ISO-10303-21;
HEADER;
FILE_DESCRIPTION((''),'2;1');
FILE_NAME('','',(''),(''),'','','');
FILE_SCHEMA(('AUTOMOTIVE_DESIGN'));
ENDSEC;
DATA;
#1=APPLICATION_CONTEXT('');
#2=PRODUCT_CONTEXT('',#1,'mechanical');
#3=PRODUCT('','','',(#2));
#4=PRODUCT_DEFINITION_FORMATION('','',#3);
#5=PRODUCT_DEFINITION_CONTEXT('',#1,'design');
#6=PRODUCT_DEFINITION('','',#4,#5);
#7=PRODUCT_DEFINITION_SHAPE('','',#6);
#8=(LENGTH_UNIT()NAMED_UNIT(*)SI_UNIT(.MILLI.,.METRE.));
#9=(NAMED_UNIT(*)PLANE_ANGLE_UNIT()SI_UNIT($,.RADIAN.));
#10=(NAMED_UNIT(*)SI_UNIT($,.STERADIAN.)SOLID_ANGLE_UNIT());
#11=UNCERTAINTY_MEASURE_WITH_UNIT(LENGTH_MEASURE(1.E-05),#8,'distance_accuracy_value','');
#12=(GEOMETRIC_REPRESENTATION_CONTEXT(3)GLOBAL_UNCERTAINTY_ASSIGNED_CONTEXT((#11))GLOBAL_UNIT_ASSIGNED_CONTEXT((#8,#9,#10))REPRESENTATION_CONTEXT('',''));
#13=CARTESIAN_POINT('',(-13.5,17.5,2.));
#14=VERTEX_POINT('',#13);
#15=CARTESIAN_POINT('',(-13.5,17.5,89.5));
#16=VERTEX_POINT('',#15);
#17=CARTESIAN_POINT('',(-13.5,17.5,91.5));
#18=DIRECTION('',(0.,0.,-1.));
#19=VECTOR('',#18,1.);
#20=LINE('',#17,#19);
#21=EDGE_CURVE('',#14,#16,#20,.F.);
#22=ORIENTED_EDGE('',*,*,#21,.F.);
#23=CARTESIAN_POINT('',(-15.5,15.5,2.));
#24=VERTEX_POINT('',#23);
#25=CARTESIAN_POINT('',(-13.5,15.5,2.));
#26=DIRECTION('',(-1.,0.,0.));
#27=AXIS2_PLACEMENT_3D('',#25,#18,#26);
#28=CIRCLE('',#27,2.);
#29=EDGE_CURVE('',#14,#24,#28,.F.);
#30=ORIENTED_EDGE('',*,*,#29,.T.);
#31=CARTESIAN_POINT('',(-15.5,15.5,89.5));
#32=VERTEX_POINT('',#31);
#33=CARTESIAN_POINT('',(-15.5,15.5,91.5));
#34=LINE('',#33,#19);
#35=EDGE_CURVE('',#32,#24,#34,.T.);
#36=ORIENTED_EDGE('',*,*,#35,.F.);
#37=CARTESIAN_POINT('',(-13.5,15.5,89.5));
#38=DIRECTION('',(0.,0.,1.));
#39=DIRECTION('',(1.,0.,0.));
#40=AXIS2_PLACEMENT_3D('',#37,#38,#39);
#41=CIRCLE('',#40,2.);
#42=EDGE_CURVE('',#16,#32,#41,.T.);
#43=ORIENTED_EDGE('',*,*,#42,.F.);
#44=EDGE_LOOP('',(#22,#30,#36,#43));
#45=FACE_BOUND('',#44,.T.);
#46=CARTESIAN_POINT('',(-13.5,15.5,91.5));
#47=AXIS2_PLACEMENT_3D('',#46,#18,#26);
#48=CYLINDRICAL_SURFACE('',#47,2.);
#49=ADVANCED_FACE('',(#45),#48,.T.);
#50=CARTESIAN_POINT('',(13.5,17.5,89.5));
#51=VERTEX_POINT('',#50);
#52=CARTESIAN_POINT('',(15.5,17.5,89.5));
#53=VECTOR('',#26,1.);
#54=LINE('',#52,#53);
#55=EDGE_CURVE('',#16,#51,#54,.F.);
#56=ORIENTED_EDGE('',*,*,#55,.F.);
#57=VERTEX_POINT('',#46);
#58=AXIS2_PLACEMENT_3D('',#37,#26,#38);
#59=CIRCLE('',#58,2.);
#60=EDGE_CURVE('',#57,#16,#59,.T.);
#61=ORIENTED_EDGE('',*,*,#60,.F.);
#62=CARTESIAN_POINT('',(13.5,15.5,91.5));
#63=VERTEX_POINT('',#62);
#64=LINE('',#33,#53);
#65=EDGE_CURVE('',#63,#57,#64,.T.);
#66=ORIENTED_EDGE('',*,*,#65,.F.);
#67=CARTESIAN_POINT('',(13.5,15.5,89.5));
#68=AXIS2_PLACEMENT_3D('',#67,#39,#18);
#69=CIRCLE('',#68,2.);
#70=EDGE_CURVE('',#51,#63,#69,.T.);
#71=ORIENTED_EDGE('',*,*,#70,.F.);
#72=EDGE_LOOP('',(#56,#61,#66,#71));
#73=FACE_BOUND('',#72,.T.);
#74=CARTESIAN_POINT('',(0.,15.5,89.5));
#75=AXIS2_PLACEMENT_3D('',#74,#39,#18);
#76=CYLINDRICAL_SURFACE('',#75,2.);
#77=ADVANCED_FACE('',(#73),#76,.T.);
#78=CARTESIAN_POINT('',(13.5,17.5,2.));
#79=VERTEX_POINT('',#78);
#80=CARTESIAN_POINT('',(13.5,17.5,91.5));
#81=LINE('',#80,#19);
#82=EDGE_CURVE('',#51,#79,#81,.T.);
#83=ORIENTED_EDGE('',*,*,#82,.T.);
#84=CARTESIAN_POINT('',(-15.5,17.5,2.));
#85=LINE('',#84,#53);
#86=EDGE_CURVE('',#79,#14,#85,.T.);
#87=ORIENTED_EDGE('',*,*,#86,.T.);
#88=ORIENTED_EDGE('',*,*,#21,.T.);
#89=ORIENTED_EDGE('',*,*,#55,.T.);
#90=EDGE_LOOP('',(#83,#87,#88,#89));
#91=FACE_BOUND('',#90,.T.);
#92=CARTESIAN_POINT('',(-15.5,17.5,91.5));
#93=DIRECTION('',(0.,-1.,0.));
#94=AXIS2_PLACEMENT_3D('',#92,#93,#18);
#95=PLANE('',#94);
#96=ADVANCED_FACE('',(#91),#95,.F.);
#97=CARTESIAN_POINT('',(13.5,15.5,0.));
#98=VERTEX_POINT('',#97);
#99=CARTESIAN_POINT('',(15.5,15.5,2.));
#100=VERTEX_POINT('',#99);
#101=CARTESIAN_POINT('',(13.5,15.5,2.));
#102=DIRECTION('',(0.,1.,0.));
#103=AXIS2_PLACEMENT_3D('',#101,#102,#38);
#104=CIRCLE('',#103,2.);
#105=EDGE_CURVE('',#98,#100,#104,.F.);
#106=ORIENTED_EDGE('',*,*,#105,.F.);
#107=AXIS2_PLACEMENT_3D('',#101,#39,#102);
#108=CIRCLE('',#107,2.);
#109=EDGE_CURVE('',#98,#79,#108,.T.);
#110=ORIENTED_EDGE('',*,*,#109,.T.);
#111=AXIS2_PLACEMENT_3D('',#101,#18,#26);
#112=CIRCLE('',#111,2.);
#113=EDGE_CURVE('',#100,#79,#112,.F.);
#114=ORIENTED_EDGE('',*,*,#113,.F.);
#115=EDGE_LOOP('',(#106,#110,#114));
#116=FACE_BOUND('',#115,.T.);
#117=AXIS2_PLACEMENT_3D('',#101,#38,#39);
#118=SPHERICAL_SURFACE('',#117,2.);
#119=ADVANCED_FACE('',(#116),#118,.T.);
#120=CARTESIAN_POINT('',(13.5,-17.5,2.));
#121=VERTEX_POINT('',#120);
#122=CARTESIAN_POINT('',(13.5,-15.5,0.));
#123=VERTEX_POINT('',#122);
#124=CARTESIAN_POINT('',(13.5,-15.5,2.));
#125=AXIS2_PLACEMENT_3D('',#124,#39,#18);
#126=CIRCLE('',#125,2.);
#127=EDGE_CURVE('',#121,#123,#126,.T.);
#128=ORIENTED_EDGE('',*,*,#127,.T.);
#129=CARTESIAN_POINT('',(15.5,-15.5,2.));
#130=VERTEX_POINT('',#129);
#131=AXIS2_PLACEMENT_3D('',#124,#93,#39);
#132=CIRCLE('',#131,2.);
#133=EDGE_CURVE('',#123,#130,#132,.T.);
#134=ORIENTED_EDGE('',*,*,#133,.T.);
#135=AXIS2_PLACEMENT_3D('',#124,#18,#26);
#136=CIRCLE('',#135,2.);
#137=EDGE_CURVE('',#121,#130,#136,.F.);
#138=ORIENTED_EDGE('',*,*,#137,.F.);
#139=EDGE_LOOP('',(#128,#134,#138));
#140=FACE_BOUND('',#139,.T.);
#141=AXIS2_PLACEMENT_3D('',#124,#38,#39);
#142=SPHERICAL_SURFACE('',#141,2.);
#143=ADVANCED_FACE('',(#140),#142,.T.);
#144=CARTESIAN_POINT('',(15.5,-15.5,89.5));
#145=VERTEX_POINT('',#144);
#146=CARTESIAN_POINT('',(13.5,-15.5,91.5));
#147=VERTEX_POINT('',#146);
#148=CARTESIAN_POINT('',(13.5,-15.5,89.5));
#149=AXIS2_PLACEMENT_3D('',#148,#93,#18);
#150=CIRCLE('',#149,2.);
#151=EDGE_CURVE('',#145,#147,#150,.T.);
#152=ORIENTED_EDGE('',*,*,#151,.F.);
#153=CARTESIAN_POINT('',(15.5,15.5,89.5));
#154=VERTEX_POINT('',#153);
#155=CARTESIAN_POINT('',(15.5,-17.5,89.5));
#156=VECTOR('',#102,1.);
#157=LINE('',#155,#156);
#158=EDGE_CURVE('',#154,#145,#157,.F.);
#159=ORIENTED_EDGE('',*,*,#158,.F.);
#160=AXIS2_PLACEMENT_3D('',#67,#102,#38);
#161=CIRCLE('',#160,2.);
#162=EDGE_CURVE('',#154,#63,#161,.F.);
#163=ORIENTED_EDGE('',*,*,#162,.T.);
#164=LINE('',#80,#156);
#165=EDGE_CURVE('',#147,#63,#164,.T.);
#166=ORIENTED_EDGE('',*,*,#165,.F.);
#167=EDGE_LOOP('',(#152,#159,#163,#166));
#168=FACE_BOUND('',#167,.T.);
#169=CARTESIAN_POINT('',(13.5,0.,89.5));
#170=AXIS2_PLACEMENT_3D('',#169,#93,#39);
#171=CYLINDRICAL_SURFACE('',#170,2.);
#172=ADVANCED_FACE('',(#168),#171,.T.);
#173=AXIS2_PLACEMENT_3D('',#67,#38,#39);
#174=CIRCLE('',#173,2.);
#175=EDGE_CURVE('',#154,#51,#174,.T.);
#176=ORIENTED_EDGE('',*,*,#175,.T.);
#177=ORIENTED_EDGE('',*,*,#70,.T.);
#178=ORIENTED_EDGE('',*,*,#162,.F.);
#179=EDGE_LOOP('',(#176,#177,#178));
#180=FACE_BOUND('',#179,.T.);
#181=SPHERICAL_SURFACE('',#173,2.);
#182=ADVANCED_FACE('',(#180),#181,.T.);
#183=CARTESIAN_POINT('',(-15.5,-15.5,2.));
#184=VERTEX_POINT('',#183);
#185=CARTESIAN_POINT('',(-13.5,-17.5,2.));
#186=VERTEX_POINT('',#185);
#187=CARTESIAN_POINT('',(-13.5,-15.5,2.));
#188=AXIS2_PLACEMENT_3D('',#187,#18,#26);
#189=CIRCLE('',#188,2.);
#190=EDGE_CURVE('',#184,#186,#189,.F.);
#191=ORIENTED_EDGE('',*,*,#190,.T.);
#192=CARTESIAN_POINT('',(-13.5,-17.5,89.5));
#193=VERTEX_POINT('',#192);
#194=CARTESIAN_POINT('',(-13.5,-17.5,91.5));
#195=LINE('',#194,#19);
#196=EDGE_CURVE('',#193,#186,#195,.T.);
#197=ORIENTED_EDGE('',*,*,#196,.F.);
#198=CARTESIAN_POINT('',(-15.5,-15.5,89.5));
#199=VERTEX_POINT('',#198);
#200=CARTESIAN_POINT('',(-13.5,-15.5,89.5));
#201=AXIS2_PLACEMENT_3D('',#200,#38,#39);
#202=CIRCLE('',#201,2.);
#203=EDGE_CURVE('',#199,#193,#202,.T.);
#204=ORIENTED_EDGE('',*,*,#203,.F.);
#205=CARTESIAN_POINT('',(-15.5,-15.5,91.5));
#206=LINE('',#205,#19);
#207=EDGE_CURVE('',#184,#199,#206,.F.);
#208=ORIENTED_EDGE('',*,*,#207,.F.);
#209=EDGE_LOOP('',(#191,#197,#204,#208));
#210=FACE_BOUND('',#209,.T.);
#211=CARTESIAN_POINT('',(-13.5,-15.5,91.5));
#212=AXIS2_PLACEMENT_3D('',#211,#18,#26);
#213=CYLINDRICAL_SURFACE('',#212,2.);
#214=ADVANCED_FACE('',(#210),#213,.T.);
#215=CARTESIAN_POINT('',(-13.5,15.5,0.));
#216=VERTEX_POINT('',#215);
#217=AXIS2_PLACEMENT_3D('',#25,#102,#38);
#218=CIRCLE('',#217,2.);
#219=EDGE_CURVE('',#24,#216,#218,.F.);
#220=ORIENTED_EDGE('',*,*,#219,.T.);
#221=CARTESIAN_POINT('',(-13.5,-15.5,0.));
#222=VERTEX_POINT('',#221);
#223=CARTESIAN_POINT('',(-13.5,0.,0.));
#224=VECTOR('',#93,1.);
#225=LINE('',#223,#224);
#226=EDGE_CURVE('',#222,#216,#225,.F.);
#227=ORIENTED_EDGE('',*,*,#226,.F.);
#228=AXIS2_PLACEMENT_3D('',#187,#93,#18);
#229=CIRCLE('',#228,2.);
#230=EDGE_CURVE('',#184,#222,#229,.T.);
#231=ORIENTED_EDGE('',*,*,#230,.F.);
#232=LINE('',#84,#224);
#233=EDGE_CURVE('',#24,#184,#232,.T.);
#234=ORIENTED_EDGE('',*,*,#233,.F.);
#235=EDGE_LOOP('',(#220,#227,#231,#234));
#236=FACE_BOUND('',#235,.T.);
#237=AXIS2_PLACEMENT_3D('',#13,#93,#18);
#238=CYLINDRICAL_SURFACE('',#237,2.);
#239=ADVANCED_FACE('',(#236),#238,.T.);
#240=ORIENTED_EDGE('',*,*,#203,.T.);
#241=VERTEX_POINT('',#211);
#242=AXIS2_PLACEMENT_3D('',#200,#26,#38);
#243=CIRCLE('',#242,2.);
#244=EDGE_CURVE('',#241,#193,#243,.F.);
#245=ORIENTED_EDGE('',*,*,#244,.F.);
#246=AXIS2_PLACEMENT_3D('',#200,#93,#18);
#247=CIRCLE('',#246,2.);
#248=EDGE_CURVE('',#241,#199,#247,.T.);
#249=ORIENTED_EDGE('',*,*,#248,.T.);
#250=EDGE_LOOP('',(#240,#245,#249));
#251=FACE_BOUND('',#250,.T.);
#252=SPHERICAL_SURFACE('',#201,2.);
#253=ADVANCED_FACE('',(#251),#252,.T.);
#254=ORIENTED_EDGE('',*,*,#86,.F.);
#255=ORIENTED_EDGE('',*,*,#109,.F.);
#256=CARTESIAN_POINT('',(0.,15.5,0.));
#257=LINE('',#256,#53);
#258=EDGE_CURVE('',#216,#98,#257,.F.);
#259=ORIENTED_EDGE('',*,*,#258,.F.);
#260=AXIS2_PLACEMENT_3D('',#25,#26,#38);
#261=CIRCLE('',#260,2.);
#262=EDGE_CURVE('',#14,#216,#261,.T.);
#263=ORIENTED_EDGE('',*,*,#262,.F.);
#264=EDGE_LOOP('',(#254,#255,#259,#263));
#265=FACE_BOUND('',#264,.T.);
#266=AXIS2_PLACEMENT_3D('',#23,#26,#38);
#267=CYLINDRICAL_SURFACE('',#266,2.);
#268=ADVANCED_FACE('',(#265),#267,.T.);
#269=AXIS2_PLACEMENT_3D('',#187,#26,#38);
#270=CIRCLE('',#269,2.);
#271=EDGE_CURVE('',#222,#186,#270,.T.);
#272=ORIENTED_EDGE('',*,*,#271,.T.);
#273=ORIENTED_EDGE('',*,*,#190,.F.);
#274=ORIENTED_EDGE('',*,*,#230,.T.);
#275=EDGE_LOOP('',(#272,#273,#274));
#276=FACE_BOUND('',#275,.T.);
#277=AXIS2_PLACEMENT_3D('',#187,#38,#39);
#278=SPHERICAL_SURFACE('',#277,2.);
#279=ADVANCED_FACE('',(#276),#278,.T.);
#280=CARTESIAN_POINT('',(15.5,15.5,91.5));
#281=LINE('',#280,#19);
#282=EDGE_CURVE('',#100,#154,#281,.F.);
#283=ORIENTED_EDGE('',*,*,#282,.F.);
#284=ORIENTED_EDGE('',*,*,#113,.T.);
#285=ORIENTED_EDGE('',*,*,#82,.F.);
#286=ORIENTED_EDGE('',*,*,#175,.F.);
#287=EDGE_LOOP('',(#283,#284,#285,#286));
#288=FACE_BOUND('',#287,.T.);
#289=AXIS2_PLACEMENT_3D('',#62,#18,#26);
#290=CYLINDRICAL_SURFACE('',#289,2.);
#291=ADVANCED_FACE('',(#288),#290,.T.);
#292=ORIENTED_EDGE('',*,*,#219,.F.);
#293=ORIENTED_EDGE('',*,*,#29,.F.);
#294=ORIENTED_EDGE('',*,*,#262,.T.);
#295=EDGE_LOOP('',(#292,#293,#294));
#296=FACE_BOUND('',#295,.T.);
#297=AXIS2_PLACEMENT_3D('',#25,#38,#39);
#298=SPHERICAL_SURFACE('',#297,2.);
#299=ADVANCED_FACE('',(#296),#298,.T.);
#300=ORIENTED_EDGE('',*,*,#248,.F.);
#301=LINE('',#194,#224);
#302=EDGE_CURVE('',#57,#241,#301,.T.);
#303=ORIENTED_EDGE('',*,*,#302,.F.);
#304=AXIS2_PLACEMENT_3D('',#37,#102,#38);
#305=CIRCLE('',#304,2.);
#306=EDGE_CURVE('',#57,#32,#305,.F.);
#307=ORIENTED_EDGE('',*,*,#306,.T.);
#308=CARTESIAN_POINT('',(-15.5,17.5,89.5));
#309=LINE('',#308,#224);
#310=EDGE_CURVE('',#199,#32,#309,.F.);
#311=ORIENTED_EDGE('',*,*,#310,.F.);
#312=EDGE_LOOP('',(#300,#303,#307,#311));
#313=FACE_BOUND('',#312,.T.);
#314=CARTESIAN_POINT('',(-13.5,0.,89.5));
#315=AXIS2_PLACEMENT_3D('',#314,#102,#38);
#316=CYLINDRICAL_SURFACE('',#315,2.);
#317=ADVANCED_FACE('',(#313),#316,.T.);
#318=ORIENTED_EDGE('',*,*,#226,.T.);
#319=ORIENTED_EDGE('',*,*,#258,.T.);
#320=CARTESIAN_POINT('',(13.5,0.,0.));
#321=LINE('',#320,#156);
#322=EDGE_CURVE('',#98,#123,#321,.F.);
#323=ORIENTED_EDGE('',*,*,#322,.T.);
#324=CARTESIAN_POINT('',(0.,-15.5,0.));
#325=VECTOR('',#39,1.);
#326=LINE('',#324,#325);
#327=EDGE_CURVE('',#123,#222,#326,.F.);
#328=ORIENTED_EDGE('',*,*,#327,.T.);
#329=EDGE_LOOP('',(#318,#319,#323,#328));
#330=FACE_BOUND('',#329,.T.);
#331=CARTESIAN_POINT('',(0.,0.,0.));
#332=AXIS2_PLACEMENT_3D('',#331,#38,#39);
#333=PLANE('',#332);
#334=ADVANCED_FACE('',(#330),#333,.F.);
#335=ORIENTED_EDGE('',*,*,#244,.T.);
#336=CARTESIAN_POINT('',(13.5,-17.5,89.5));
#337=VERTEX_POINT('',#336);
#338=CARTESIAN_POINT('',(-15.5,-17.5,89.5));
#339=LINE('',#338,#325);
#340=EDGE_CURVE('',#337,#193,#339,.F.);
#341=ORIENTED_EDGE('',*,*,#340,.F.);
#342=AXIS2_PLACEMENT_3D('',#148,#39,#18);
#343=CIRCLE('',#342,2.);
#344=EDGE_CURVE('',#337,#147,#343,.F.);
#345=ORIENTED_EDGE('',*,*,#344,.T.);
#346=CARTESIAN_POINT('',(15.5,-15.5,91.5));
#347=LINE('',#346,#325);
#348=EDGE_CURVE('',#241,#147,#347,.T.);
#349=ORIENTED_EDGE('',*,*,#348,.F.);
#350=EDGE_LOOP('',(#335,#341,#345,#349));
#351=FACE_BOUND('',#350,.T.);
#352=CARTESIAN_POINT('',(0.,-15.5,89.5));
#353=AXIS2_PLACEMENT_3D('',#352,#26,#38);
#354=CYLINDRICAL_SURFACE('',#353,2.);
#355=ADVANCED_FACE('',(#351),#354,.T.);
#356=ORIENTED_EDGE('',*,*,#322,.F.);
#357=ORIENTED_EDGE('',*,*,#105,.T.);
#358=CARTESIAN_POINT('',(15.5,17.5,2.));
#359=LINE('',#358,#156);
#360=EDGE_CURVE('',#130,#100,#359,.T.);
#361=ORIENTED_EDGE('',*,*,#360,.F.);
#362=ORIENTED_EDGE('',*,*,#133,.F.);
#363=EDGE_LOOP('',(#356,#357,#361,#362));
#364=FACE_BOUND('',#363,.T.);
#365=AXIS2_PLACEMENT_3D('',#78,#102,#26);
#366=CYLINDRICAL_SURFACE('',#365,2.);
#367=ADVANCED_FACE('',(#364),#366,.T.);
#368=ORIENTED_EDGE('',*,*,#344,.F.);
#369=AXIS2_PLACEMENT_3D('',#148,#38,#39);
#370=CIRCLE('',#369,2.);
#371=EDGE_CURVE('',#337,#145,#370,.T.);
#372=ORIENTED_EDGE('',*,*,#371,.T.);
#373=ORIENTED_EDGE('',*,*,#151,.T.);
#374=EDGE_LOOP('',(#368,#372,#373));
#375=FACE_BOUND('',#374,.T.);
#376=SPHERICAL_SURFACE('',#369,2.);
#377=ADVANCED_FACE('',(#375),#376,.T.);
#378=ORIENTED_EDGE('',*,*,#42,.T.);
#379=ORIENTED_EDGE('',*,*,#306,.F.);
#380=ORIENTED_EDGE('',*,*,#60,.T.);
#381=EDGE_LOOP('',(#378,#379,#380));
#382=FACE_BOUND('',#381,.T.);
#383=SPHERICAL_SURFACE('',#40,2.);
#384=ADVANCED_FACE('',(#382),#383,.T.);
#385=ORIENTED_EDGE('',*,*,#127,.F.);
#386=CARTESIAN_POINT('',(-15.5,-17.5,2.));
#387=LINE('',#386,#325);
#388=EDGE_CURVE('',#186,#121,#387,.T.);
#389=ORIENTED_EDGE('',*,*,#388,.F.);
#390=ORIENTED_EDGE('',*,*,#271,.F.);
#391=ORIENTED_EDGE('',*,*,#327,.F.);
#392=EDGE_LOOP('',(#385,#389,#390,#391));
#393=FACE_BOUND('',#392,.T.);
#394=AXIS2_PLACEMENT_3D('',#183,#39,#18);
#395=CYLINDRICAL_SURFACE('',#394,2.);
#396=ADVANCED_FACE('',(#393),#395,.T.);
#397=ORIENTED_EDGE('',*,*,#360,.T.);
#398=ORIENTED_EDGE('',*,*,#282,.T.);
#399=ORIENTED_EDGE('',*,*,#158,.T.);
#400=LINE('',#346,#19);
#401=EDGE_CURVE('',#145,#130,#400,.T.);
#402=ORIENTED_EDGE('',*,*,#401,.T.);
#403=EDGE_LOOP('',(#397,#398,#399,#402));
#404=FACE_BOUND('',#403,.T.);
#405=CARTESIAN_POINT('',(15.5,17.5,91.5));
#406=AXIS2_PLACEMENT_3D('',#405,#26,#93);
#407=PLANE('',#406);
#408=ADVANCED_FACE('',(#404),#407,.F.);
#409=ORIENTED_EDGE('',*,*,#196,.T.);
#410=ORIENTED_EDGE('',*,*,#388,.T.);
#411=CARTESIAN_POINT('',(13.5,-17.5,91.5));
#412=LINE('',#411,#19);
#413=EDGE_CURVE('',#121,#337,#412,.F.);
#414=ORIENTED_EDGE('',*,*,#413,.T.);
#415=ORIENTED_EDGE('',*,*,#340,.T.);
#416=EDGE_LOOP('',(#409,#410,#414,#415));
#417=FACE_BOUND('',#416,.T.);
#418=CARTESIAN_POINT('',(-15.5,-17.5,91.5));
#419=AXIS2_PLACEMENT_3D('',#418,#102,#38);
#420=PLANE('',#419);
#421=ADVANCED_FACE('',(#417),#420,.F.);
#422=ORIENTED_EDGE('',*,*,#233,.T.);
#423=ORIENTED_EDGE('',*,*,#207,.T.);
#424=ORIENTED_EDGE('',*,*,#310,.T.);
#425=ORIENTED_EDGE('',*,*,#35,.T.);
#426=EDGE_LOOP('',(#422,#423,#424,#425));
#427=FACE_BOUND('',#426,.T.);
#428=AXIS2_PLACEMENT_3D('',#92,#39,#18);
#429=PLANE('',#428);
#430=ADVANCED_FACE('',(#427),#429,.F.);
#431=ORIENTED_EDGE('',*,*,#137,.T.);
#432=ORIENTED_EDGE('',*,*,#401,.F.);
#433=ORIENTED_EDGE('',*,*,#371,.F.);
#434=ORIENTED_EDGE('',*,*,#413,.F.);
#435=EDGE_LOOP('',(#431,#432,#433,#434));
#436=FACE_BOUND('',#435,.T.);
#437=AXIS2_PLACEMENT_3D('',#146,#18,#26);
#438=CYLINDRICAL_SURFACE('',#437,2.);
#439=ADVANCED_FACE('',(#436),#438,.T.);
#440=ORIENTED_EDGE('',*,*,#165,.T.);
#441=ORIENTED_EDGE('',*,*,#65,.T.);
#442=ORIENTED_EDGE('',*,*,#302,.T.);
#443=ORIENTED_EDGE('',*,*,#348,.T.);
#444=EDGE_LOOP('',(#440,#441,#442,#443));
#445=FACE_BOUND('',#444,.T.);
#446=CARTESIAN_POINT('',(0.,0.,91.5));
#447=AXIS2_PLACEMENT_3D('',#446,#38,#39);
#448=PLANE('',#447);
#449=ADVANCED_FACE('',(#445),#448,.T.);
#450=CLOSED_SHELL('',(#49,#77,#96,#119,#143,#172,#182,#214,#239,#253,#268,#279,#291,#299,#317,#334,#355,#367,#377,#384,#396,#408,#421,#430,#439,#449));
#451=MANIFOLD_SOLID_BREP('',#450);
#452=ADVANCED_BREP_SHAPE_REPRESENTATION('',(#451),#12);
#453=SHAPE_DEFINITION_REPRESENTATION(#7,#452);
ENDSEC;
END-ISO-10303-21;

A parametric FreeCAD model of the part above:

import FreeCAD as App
import Part
import Sketcher
from FreeCAD import Vector


def add_polygon(sketch, points):
    """Adds a closed chain of lines whose ends are joined by coincident constraints."""
    first, n = sketch.GeometryCount, len(points)
    for a, b in zip(points, points[1:] + points[:1]):
        sketch.addGeometry(Part.LineSegment(App.Vector(*a, 0), App.Vector(*b, 0)), False)
    for i in range(n):
        sketch.addConstraint(Sketcher.Constraint("Coincident", first + i, 2, first + (i + 1) % n, 1))

doc = App.newDocument("Part")
body = doc.addObject("PartDesign::Body", "Body")

# Sketch on XY plane
sketch1 = body.newObject("Sketcher::SketchObject", "Sketch")
sketch1.AttachmentSupport = (doc.getObject("XY_Plane"), [""])
sketch1.MapMode = "FlatFace"
add_polygon(sketch1, [(-16, 18), (-16, -18), (16, -18), (16, 18)])  # lines 0-3
sketch1.addConstraint([
    Sketcher.Constraint("Vertical", 0),
    Sketcher.Constraint("Horizontal", 1),
    Sketcher.Constraint("Vertical", 2),
    Sketcher.Constraint("Horizontal", 3),
    Sketcher.Constraint("Symmetric", 0, 2, 2, 2, -1, 1),
    Sketcher.Constraint("DistanceX", 1, 1, 1, 2, 31.0),
    Sketcher.Constraint("DistanceY", 0, 2, 0, 1, 35.0),
])
pad1 = body.newObject("PartDesign::Pad", "Pad")
pad1.Profile = sketch1
pad1.Length = 91.5
doc.recompute()

fillet = body.newObject("PartDesign::Fillet", "Fillet")
fillet.Base = (pad1, ["Edge1"])
fillet.UseAllEdges = True
fillet.Radius = 2

doc.recompute()
